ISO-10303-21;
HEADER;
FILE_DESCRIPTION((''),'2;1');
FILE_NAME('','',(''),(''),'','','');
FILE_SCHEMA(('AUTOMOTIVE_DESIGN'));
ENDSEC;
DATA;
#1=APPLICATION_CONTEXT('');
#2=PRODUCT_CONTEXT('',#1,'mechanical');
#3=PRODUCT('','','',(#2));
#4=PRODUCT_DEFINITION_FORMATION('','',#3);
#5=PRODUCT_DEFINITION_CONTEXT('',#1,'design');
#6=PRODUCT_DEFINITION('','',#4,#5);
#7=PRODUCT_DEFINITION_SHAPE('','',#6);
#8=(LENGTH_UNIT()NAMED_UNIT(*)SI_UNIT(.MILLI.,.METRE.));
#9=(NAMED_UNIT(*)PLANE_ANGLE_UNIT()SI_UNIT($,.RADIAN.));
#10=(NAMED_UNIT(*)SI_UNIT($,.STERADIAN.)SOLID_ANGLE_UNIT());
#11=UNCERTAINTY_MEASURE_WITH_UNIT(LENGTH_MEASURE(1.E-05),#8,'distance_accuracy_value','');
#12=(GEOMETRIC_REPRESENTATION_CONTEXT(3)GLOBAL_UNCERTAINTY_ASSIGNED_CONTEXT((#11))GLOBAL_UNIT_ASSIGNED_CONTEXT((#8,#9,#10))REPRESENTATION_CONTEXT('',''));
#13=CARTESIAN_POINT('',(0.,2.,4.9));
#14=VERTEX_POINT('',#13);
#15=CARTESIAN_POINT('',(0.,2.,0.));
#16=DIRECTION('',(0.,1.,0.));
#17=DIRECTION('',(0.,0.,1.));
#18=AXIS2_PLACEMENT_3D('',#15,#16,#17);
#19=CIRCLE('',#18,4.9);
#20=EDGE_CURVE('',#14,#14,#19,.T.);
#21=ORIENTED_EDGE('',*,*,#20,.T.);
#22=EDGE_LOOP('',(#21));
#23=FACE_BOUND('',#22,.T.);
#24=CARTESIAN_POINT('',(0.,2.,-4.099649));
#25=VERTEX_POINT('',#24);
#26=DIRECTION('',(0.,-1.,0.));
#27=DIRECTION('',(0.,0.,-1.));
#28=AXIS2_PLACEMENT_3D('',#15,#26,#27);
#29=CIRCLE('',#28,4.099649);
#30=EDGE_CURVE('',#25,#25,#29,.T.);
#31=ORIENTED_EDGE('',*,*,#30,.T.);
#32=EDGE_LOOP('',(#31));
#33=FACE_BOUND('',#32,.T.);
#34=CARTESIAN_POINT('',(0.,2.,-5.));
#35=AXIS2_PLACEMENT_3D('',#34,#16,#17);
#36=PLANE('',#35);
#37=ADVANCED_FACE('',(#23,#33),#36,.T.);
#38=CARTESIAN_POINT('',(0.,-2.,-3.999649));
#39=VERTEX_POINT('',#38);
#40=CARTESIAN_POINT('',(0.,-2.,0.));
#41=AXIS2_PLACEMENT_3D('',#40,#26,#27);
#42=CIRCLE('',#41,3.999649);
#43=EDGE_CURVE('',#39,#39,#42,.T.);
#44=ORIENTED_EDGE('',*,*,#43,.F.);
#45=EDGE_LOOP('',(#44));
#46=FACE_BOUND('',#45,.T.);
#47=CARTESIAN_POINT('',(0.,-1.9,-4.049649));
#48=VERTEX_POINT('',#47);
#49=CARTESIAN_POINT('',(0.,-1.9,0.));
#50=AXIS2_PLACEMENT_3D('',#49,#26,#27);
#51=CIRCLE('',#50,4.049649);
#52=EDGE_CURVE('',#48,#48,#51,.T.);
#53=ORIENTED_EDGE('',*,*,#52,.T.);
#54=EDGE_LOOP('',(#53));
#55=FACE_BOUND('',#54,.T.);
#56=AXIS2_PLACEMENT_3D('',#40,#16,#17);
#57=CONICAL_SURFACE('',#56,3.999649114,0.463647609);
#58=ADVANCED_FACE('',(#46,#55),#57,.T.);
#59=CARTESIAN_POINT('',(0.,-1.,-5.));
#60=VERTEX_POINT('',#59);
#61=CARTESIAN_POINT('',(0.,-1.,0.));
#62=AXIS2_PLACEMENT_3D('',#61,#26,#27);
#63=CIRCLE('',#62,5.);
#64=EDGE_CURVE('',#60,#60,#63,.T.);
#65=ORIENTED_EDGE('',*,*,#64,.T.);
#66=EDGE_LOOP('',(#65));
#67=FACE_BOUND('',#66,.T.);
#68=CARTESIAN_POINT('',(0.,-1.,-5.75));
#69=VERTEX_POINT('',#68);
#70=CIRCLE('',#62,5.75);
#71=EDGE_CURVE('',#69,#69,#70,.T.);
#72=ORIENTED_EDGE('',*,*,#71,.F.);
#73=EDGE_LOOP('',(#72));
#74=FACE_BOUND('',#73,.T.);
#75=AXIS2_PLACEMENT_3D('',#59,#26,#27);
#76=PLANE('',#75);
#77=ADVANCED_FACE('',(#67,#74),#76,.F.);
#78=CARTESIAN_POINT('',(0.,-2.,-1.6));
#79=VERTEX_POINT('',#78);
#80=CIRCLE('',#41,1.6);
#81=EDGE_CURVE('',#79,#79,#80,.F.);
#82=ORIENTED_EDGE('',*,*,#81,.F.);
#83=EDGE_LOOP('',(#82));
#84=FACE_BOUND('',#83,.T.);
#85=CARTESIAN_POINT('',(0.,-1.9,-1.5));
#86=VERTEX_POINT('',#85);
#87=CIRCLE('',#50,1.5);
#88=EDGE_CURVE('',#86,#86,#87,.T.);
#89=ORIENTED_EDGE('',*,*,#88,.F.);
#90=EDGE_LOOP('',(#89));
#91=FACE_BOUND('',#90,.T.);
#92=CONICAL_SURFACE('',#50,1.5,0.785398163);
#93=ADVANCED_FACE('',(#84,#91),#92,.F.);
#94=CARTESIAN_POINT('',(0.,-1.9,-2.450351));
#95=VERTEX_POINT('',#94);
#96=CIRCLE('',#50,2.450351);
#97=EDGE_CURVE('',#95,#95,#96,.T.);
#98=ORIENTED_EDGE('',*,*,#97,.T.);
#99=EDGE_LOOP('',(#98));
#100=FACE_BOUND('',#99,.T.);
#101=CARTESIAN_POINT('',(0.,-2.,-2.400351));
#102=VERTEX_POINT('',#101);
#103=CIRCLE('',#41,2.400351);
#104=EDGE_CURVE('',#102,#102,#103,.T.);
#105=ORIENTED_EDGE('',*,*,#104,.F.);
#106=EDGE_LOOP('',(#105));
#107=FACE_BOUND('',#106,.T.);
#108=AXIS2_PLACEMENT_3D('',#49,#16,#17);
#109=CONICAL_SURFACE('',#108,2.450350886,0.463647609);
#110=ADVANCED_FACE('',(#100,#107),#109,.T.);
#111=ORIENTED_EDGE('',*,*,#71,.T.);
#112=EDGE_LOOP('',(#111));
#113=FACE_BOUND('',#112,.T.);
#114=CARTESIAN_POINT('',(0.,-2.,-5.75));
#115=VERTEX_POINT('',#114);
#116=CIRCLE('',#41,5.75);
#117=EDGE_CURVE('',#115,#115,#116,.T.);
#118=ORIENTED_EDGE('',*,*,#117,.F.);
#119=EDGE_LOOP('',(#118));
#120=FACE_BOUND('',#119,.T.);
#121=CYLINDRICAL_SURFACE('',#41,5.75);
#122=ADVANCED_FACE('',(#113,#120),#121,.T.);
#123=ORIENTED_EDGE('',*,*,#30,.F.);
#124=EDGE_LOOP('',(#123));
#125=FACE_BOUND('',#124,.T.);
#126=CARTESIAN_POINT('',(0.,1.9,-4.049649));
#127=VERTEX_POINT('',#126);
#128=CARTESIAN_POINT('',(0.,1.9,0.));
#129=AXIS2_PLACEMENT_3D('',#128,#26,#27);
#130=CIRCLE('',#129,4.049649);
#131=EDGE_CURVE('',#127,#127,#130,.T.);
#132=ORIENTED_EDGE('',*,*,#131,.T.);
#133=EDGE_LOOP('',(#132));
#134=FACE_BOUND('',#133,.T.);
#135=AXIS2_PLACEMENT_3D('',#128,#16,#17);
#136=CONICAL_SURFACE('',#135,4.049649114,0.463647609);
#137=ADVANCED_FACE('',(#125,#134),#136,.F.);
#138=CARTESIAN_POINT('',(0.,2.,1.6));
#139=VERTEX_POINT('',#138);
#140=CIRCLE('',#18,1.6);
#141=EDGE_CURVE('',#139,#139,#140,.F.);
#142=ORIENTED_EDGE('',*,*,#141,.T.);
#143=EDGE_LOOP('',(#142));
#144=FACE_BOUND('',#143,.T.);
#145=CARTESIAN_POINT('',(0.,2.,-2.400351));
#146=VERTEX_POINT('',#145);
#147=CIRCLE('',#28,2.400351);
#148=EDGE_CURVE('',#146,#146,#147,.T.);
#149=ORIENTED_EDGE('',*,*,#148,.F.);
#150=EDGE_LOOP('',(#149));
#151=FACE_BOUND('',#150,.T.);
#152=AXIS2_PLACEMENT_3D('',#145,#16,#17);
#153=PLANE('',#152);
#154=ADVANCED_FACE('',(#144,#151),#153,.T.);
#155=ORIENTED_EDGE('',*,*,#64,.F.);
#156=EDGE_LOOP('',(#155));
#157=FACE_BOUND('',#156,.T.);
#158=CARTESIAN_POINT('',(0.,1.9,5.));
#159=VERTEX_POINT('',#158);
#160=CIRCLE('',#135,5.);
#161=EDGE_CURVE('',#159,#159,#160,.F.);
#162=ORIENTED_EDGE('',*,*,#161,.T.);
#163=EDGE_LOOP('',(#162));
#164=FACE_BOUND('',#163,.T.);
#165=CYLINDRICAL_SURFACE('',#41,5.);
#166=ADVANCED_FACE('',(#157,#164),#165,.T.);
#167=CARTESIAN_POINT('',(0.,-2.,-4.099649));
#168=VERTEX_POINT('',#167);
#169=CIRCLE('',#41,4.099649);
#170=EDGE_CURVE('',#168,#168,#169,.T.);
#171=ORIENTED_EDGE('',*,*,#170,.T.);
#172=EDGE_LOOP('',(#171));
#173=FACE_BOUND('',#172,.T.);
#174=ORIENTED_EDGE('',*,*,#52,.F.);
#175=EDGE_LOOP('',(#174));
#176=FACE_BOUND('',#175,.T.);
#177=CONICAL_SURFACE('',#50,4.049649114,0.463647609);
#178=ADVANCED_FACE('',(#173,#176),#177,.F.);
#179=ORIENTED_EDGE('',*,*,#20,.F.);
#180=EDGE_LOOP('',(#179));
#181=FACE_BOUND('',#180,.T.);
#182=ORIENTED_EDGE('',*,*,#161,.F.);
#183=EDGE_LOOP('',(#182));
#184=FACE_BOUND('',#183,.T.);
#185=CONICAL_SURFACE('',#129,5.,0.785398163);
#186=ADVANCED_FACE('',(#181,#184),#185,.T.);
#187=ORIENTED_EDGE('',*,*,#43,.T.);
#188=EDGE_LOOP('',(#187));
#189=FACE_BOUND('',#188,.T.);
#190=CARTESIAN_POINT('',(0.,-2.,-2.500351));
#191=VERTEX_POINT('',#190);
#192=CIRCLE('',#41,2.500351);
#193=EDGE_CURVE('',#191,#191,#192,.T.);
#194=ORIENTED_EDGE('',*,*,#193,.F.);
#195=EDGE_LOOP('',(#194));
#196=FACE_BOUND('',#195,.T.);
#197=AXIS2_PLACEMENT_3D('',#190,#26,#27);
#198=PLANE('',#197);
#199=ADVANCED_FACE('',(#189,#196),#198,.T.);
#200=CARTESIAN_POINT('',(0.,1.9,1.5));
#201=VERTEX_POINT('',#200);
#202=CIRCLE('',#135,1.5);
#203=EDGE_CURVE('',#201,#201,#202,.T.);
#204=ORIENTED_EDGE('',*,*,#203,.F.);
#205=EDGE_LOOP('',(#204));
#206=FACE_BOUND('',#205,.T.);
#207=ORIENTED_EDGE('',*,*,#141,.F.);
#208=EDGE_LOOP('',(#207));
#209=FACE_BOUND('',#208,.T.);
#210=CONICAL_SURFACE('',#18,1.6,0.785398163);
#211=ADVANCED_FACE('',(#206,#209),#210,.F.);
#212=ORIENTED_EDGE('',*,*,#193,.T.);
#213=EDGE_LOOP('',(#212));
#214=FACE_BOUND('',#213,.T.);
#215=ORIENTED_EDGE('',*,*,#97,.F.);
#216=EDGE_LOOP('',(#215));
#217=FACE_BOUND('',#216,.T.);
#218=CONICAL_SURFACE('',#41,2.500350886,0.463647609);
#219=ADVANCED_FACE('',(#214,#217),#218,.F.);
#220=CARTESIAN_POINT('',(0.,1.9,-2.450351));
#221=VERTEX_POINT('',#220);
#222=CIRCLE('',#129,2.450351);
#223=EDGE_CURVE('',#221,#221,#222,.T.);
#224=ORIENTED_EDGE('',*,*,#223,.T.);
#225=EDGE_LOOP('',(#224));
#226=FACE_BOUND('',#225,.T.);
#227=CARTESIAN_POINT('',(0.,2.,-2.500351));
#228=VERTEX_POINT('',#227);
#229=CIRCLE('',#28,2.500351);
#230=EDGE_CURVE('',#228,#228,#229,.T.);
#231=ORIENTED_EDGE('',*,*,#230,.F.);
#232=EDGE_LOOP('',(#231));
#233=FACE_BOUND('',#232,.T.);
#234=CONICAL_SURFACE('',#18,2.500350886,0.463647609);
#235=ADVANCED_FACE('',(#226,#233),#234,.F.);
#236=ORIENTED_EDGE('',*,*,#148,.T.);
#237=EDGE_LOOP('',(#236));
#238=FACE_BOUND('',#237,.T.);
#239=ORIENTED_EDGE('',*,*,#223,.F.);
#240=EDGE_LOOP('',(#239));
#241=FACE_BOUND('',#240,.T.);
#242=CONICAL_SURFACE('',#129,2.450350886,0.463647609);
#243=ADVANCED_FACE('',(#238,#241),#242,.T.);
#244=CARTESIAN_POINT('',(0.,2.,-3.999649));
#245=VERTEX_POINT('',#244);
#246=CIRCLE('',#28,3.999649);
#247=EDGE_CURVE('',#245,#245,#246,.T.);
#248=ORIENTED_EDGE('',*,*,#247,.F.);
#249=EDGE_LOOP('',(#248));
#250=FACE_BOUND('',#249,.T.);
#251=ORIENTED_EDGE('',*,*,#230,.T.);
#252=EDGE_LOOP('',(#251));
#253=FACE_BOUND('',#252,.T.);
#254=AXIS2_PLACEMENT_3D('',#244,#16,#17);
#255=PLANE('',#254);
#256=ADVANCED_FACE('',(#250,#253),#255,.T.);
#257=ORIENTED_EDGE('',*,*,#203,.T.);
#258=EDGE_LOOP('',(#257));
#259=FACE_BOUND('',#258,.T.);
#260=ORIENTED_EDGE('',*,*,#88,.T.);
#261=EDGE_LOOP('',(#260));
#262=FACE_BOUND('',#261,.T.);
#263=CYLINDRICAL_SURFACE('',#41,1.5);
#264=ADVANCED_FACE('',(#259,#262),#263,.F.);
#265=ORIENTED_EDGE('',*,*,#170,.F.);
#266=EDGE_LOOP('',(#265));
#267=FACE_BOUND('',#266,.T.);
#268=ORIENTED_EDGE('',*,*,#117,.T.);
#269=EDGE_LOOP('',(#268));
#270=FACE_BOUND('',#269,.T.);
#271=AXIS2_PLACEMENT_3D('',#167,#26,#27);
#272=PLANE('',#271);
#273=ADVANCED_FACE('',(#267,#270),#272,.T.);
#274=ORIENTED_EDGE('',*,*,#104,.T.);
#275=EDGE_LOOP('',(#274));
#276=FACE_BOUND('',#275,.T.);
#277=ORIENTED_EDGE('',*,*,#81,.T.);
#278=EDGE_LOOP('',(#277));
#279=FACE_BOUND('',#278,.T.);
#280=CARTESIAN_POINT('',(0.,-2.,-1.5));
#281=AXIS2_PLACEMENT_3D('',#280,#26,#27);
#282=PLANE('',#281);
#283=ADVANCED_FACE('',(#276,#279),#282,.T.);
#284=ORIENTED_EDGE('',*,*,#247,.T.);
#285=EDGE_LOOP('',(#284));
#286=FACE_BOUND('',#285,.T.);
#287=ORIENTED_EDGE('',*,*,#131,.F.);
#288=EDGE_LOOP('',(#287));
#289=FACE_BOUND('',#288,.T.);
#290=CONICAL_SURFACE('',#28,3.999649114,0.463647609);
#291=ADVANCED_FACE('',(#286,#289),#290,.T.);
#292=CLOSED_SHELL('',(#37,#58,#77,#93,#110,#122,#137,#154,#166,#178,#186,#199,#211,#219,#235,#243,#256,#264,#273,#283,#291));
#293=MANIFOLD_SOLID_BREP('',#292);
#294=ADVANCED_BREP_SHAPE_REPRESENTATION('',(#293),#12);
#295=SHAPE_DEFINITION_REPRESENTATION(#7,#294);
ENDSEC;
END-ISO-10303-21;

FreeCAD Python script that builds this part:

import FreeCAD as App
import Part
import Sketcher
from FreeCAD import Vector
Q = App.Units.Quantity


def edges_at(feature, points):
    """Names of the edges that pass closest to the given points."""
    edges = feature.Shape.Edges
    near = lambda p: min(range(len(edges)), key=lambda i: edges[i].distToShape(Part.Vertex(*p))[0])
    return sorted({f"Edge{near(p) + 1}" for p in points})


def add_polygon(sketch, points):
    """Adds a closed chain of lines whose ends are joined by coincident constraints."""
    first, n = sketch.GeometryCount, len(points)
    for a, b in zip(points, points[1:] + points[:1]):
        sketch.addGeometry(Part.LineSegment(App.Vector(*a, 0), App.Vector(*b, 0)), False)
    for i in range(n):
        sketch.addConstraint(Sketcher.Constraint("Coincident", first + i, 2, first + (i + 1) % n, 1))

doc = App.newDocument("Part")
params = doc.addObject("Spreadsheet::Sheet", "Params")
for row, (alias, value) in enumerate([
    ("sketch1_width", "3 mm"),
    ("sketch1_width2", "4 mm"),
    ("sketch1_height", "0.75 mm"),
    ("revolution_angle", "360 deg"),
    ("chamfer_size", "0.1 mm"),
], start=1):
    params.set(f"A{row}", alias)
    params.set(f"B{row}", "=" + value)
    params.setAlias(f"B{row}", alias)

body = doc.addObject("PartDesign::Body", "Body")

# Sketch on YZ plane
sketch1 = body.newObject("Sketcher::SketchObject", "Sketch")
sketch1.AttachmentSupport = (doc.getObject("YZ_Plane"), [""])
sketch1.MapMode = "FlatFace"
add_polygon(sketch1, [(-1, -5), (2, -5), (2, -4.099649), (1.9, -4.049649), (2, -3.999649), (2, -2.500351), (1.9, -2.450351), (2, -2.400351), (2, -1.5), (-2, -1.5), (-2, -2.400351), (-1.9, -2.450351), (-2, -2.500351), (-2, -3.999649), (-1.9, -4.049649), (-2, -4.099649), (-2, -5.75), (-1, -5.75)])  # lines 0-17
sketch1.addConstraint(Sketcher.Constraint("Horizontal", 0))
sketch1.addConstraint(Sketcher.Constraint("Vertical", 1))
sketch1.addConstraint(Sketcher.Constraint("Vertical", 4))
sketch1.addConstraint(Sketcher.Constraint("Vertical", 7))
sketch1.addConstraint(Sketcher.Constraint("Horizontal", 8))
sketch1.addConstraint(Sketcher.Constraint("Vertical", 9))
sketch1.addConstraint(Sketcher.Constraint("Vertical", 12))
sketch1.addConstraint(Sketcher.Constraint("Vertical", 15))
sketch1.addConstraint(Sketcher.Constraint("Horizontal", 16))
sketch1.addConstraint(Sketcher.Constraint("Vertical", 17))
sketch1.addConstraint(Sketcher.Constraint("Symmetric", 6, 2, 9, 2, -2))
sketch1.addConstraint(Sketcher.Constraint("Symmetric", 5, 2, 10, 2, -2))
sketch1.addConstraint(Sketcher.Constraint("Symmetric", 4, 2, 11, 2, -2))
sketch1.addConstraint(Sketcher.Constraint("Symmetric", 2, 2, 13, 2, -2))
sketch1.addConstraint(Sketcher.Constraint("Symmetric", 1, 2, 14, 2, -2))
sketch1.addConstraint(Sketcher.Constraint("Parallel", 2, 5))
sketch1.addConstraint(Sketcher.Constraint("Parallel", 3, 6))
sketch1.addConstraint(Sketcher.Constraint("Parallel", 5, 10))
sketch1.addConstraint(Sketcher.Constraint("Parallel", 10, 13))
sketch1.addConstraint(Sketcher.Constraint("Vertical", 1, 2, 3, 2))
sketch1.addConstraint(Sketcher.Constraint("Vertical", 2, 2, 5, 2))
sketch1.addConstraint(Sketcher.Constraint("Vertical", 4, 2, 6, 2))
sketch1.addConstraint(Sketcher.Constraint("Equal", 1, 7))
sketch1.addConstraint(Sketcher.Constraint("DistanceX", 0, 1, 0, 2, Q("3 mm")))
sketch1.addConstraint(Sketcher.Constraint("DistanceX", 8, 2, 8, 1, Q("4 mm")))
sketch1.addConstraint(Sketcher.Constraint("DistanceY", 0, 2, -1, 1, Q("5 mm")))
sketch1.addConstraint(Sketcher.Constraint("DistanceY", 17, 1, 17, 2, Q("0.75 mm")))
sketch1.addConstraint(Sketcher.Constraint("DistanceX", -1, 1, 2, 2, Q("1.9 mm")))
sketch1.addConstraint(Sketcher.Constraint("DistanceY", 7, 2, -1, 1, Q("1.5 mm")))
sketch1.addConstraint(Sketcher.Constraint("DistanceY", 1, 2, 3, 2, Q("0.1 mm")))
sketch1.addConstraint(Sketcher.Constraint("DistanceY", 4, 1, 4, 2, Q("1.499298 mm")))
sketch1.setExpression("Constraints[41]", "Params.sketch1_width")
sketch1.setExpression("Constraints[42]", "Params.sketch1_width2")
sketch1.setExpression("Constraints[44]", "Params.sketch1_height")
revolution = body.newObject("PartDesign::Revolution", "Revolution")
revolution.Profile = sketch1
revolution.ReferenceAxis = (sketch1, ["H_Axis"])
revolution.setExpression("Angle", "Params.revolution_angle")
doc.recompute()

chamfer = body.newObject("PartDesign::Chamfer", "Chamfer")
chamfer.Base = (revolution, edges_at(revolution, [(0, 2, 1.5), (0, 2, 5), (0, -2, 1.5)]))
chamfer.setExpression("Size", "Params.chamfer_size")

doc.recompute()
